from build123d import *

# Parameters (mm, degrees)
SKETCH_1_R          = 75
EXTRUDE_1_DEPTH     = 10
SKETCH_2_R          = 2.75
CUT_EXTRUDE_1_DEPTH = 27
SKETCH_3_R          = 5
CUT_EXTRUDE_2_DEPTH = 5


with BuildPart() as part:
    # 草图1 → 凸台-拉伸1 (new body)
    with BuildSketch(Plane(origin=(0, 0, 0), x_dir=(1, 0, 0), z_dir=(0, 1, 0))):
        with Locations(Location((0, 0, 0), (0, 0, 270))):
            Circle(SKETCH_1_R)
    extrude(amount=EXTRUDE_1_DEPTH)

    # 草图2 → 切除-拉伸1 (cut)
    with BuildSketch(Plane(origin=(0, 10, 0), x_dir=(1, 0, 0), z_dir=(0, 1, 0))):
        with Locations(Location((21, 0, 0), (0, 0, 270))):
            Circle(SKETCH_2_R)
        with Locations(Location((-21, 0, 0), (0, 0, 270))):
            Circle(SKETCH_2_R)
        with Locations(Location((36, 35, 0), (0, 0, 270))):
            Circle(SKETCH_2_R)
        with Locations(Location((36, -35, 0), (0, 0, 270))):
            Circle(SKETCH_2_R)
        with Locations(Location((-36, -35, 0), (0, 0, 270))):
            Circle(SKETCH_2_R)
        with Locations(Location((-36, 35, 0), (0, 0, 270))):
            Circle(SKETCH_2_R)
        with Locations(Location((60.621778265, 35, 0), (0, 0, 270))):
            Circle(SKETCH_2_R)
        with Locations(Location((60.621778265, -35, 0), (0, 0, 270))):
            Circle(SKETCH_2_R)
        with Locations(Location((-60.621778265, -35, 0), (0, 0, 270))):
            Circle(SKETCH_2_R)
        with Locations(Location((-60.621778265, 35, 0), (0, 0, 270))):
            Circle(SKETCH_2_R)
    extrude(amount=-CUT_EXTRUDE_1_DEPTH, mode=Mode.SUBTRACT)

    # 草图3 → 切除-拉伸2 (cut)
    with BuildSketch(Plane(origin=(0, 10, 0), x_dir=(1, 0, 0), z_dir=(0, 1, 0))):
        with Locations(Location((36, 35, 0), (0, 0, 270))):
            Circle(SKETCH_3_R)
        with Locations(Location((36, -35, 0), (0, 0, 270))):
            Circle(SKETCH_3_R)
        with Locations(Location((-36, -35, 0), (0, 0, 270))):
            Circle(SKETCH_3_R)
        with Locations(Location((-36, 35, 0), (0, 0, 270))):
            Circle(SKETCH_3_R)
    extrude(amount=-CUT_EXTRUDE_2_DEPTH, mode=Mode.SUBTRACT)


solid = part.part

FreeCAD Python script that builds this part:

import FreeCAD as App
import Part
import Sketcher

V = App.Vector

doc = App.newDocument("Part")
params = doc.addObject("Spreadsheet::Sheet", "Params")
for row, (alias, value) in enumerate([
    ("sketch1_diameter", "150 mm"),
    ("pad1_length", "10 mm"),
    ("sketch2_diameter", "5.5 mm"),
    ("pocket1_length", "27 mm"),
    ("sketch3_diameter", "10 mm"),
    ("pocket2_length", "5 mm"),
], start=1):
    params.set(f"A{row}", alias)
    params.set(f"B{row}", "=" + value)
    params.setAlias(f"B{row}", alias)

body = doc.addObject("PartDesign::Body", "Body")

sketch1 = body.newObject("Sketcher::SketchObject", "Sketch")
sketch1.AttachmentSupport = (doc.getObject("XZ_Plane"), [""])
sketch1.MapMode = "FlatFace"
sketch1.addGeometry(Part.Circle(V(0, 0, 0), V(0, 0, 1), 75), False)
sketch1.addConstraint([
    Sketcher.Constraint("Coincident", 0, 3, -1, 1),
    Sketcher.Constraint("Diameter", 0, 150.0),
])
sketch1.setExpression("Constraints[1]", "Params.sketch1_diameter")
pad1 = body.newObject("PartDesign::Pad", "Pad")
pad1.Profile = sketch1
pad1.setExpression("Length", "Params.pad1_length")
pad1.Reversed = True

sketch2 = body.newObject("Sketcher::SketchObject", "Sketch001")
sketch2.AttachmentSupport = (doc.getObject("XZ_Plane"), [""])
sketch2.MapMode = "FlatFace"
sketch2.AttachmentOffset = App.Placement(V(0, 0, -10), App.Rotation())
sketch2.addGeometry([
    Part.Circle(V(21, 0, 0), V(0, 0, 1), 2.75),
    Part.Circle(V(-21, 0, 0), V(0, 0, 1), 2.75),
    Part.Circle(V(36, -35, 0), V(0, 0, 1), 2.75),
    Part.Circle(V(36, 35, 0), V(0, 0, 1), 2.75),
    Part.Circle(V(-36, 35, 0), V(0, 0, 1), 2.75),
    Part.Circle(V(-36, -35, 0), V(0, 0, 1), 2.75),
    Part.Circle(V(60.621778, -35, 0), V(0, 0, 1), 2.75),
    Part.Circle(V(60.621778, 35, 0), V(0, 0, 1), 2.75),
    Part.Circle(V(-60.621778, 35, 0), V(0, 0, 1), 2.75),
    Part.Circle(V(-60.621778, -35, 0), V(0, 0, 1), 2.75),
], False)
sketch2.addConstraint([
    Sketcher.Constraint("Equal", 0, 1),
    Sketcher.Constraint("Equal", 1, 2),
    Sketcher.Constraint("Equal", 2, 3),
    Sketcher.Constraint("Equal", 3, 4),
    Sketcher.Constraint("Equal", 4, 5),
    Sketcher.Constraint("Equal", 5, 6),
    Sketcher.Constraint("Equal", 6, 7),
    Sketcher.Constraint("Equal", 7, 8),
    Sketcher.Constraint("Equal", 8, 9),
    Sketcher.Constraint("Symmetric", 0, 3, 1, 3, -1, 1),
    Sketcher.Constraint("Symmetric", 2, 3, 4, 3, -1, 1),
    Sketcher.Constraint("Symmetric", 3, 3, 5, 3, -1, 1),
    Sketcher.Constraint("Symmetric", 6, 3, 8, 3, -1, 1),
    Sketcher.Constraint("Symmetric", 7, 3, 9, 3, -1, 1),
    Sketcher.Constraint("Symmetric", 3, 3, 4, 3, -2),
    Sketcher.Constraint("Symmetric", 7, 3, 8, 3, -2),
    Sketcher.Constraint("PointOnObject", 0, 3, -1),
    Sketcher.Constraint("Horizontal", 5, 3, 6, 3),
    Sketcher.Constraint("Diameter", 0, 5.5),
    Sketcher.Constraint("DistanceX", -1, 1, 0, 3, 21.0),
    Sketcher.Constraint("DistanceX", -1, 1, 2, 3, 36.0),
    Sketcher.Constraint("DistanceY", 2, 3, -1, 1, 35.0),
    Sketcher.Constraint("DistanceX", -1, 1, 6, 3, 60.621778),
])
sketch2.setExpression("Constraints[18]", "Params.sketch2_diameter")
pocket1 = body.newObject("PartDesign::Pocket", "Pocket")
pocket1.Profile = sketch2
pocket1.setExpression("Length", "Params.pocket1_length")
pocket1.Reversed = True

sketch3 = body.newObject("Sketcher::SketchObject", "Sketch002")
sketch3.AttachmentSupport = (doc.getObject("XZ_Plane"), [""])
sketch3.MapMode = "FlatFace"
sketch3.AttachmentOffset = App.Placement(V(0, 0, -10), App.Rotation())
sketch3.addGeometry([
    Part.Circle(V(36, -35, 0), V(0, 0, 1), 5),
    Part.Circle(V(36, 35, 0), V(0, 0, 1), 5),
    Part.Circle(V(-36, 35, 0), V(0, 0, 1), 5),
    Part.Circle(V(-36, -35, 0), V(0, 0, 1), 5),
], False)
sketch3.addConstraint([
    Sketcher.Constraint("Equal", 0, 1),
    Sketcher.Constraint("Equal", 1, 2),
    Sketcher.Constraint("Equal", 2, 3),
    Sketcher.Constraint("Symmetric", 0, 3, 2, 3, -1, 1),
    Sketcher.Constraint("Symmetric", 1, 3, 3, 3, -1, 1),
    Sketcher.Constraint("Symmetric", 1, 3, 2, 3, -2),
    Sketcher.Constraint("Diameter", 0, 10.0),
    Sketcher.Constraint("DistanceX", -1, 1, 0, 3, 36.0),
    Sketcher.Constraint("DistanceY", 0, 3, -1, 1, 35.0),
])
sketch3.setExpression("Constraints[6]", "Params.sketch3_diameter")
pocket2 = body.newObject("PartDesign::Pocket", "Pocket001")
pocket2.Profile = sketch3
pocket2.setExpression("Length", "Params.pocket2_length")
pocket2.Reversed = True

doc.recompute()
